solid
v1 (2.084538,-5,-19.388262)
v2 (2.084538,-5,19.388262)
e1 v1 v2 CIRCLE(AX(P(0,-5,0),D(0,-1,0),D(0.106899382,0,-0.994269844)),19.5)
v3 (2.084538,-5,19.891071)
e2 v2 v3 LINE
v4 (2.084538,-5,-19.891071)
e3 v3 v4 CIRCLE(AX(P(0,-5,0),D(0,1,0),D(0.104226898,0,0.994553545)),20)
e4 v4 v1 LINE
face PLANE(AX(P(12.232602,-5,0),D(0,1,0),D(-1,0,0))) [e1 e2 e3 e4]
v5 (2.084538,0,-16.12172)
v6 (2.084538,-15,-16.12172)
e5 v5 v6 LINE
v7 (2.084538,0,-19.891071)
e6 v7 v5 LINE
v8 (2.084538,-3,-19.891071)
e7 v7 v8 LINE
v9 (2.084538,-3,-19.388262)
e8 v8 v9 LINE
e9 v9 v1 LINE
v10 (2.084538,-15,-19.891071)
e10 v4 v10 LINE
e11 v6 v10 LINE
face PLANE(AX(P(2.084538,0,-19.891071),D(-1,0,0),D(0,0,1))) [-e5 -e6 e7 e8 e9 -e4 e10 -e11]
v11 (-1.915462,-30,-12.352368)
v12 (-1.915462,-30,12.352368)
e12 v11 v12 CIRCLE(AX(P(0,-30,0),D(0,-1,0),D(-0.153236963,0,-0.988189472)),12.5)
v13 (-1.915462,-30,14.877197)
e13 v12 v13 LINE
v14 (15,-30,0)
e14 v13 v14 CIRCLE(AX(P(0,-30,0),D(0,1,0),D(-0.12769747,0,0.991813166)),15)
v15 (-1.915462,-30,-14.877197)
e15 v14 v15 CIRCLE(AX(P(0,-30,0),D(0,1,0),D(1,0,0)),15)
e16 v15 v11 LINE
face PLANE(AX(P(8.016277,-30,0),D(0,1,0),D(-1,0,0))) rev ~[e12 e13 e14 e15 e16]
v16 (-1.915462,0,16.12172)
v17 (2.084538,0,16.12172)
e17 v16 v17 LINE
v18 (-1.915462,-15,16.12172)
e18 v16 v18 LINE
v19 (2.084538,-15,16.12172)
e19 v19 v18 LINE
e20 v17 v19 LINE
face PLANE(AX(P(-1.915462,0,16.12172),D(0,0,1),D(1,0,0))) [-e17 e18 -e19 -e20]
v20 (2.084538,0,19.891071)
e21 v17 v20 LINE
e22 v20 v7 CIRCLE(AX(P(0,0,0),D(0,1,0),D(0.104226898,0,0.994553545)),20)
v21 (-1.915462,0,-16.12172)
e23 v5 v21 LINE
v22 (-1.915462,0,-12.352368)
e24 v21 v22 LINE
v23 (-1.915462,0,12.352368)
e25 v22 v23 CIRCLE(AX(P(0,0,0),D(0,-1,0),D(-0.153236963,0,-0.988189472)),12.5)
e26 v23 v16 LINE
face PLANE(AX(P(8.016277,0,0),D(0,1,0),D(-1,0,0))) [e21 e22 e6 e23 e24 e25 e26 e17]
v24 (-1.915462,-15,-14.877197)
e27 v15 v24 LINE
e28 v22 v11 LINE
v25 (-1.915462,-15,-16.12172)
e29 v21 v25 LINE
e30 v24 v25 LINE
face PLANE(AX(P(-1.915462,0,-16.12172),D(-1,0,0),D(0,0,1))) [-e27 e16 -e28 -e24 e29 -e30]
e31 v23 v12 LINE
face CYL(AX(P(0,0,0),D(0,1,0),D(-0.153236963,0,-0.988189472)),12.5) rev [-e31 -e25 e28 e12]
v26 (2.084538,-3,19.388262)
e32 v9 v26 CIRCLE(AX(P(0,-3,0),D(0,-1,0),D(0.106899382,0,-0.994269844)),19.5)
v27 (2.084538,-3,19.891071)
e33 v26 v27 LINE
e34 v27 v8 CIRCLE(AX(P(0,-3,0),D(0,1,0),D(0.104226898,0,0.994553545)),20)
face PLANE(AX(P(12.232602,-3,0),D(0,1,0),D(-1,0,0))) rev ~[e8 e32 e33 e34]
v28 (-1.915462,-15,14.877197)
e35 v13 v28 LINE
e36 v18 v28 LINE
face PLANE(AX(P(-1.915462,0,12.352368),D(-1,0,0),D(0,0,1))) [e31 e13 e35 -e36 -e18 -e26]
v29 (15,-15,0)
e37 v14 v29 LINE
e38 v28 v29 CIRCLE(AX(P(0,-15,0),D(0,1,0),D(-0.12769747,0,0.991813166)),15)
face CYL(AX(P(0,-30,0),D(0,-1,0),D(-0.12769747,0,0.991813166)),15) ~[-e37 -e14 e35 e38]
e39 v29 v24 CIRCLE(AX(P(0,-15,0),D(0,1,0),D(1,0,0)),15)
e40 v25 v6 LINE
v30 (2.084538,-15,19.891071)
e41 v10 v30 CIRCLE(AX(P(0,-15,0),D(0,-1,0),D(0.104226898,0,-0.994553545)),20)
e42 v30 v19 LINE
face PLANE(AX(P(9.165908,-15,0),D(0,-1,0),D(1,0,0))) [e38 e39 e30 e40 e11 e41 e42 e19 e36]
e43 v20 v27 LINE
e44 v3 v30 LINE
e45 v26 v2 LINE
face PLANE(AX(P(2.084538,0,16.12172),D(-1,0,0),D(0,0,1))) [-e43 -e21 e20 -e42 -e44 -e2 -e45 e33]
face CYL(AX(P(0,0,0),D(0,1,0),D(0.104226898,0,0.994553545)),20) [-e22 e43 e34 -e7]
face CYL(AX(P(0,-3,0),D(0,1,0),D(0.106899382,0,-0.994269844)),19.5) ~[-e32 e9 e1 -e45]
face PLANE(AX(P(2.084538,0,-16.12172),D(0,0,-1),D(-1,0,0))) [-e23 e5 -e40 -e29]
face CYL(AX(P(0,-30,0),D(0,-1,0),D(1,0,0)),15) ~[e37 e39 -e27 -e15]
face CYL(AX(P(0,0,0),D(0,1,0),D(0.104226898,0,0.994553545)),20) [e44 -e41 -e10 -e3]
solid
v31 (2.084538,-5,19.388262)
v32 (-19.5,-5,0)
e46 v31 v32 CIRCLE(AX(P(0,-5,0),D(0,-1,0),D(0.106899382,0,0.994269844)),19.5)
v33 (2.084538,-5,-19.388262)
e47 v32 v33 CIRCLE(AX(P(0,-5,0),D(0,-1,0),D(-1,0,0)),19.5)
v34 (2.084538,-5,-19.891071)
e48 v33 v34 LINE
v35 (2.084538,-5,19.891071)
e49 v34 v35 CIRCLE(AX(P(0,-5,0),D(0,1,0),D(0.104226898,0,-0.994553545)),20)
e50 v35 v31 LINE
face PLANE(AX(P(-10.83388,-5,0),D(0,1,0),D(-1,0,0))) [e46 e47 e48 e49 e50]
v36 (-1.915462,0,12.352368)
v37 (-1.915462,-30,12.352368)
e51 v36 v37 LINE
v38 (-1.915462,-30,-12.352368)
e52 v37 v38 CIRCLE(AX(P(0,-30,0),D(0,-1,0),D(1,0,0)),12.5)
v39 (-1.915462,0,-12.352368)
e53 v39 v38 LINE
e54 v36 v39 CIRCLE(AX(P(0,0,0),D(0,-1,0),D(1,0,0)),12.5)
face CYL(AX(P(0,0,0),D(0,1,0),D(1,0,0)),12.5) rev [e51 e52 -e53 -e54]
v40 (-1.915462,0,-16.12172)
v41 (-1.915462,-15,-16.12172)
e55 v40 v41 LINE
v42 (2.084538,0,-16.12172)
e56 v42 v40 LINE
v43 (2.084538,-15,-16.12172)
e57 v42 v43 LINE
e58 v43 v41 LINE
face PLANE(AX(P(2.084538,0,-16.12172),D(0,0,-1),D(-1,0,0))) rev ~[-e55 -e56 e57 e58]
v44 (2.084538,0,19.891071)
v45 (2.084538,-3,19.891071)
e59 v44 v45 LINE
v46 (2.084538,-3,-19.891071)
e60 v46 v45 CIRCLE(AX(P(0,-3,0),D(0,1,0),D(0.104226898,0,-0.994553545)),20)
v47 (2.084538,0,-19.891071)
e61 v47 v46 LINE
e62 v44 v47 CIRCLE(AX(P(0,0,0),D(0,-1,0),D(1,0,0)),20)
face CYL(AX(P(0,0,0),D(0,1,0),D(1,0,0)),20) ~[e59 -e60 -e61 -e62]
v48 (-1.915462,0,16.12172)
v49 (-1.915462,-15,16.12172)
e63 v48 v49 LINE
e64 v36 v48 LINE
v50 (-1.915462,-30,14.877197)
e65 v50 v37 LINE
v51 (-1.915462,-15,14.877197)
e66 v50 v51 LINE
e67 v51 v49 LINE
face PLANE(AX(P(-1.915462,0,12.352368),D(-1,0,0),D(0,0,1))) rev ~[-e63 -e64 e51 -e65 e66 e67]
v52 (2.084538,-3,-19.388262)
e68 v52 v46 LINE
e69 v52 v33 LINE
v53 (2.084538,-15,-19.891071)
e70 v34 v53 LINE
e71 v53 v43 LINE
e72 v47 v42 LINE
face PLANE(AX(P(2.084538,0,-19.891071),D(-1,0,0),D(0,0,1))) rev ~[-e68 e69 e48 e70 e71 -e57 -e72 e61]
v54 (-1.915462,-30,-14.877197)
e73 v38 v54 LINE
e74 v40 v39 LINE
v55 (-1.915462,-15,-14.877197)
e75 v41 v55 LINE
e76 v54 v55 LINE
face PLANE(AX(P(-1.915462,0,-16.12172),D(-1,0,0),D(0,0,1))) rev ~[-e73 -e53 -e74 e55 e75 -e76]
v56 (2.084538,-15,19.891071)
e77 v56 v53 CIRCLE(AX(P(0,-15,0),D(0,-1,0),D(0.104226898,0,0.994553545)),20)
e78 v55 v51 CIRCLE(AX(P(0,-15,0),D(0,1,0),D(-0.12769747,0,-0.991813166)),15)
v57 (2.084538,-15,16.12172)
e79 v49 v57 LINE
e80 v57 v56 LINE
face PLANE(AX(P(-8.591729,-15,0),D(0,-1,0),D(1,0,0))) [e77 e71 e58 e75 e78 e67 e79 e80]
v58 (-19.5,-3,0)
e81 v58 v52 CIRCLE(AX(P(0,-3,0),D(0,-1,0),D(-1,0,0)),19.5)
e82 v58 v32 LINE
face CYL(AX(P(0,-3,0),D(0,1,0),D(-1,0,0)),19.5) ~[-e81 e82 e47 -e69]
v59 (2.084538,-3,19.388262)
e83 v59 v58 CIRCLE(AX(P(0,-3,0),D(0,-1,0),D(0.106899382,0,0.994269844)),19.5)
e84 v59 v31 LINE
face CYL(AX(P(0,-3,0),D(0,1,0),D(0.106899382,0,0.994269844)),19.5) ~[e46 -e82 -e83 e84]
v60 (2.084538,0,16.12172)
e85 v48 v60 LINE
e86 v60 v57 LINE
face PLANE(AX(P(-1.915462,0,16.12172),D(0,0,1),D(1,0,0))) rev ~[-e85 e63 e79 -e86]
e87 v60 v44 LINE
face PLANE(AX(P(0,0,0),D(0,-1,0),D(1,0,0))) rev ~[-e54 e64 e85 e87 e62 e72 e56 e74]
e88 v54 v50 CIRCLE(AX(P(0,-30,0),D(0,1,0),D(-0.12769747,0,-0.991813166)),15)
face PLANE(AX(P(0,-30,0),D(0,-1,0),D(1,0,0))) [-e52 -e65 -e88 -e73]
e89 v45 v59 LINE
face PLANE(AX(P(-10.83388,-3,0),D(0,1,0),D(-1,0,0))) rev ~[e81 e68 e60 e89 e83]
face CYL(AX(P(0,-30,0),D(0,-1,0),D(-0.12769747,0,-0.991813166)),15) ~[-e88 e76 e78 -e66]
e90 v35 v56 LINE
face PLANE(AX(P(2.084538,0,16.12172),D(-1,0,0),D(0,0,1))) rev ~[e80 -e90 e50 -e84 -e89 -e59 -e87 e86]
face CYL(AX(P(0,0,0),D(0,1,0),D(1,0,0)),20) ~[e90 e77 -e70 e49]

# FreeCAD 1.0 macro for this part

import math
import FreeCAD as App
import Part
import Sketcher

V = App.Vector

doc = App.newDocument("Part")
body = doc.addObject("PartDesign::Body", "Body")

# Sketch on XZ plane
sketch1 = body.newObject("Sketcher::SketchObject", "Sketch")
sketch1.AttachmentSupport = (doc.getObject("XZ_Plane"), [""])
sketch1.MapMode = "FlatFace"
sketch1.addGeometry([
    Part.Circle(V(0, 0, 0), V(0, 0, 1), 15),
    Part.Circle(V(0, 0, 0), V(0, 0, 1), 12),
], False)
sketch1.addConstraint([
    Sketcher.Constraint("Coincident", 0, 3, -1, 1),
    Sketcher.Constraint("Coincident", 1, 3, -1, 1),
    Sketcher.Constraint("Diameter", 0, 30.0),
    Sketcher.Constraint("Diameter", 1, 25.0),
])
pad1 = body.newObject("PartDesign::Pad", "Pad")
pad1.Profile = sketch1
pad1.Length = 30

# Sketch on XZ plane
sketch2 = body.newObject("Sketcher::SketchObject", "Sketch001")
sketch2.AttachmentSupport = (doc.getObject("XZ_Plane"), [""])
sketch2.MapMode = "FlatFace"
sketch2.addGeometry([
    Part.Circle(V(0, 0, 0), V(0, 0, 1), 20),
    Part.Circle(V(0, 0, 0), V(0, 0, 1), 15),
], False)
sketch2.addConstraint([
    Sketcher.Constraint("Coincident", 0, 3, -1, 1),
    Sketcher.Constraint("Coincident", 1, 3, -1, 1),
    Sketcher.Constraint("Diameter", 0, 40.0),
    Sketcher.Constraint("Diameter", 1, 30.0),
])
pad2 = body.newObject("PartDesign::Pad", "Pad001")
pad2.Profile = sketch2
pad2.Length = 30

# Sketch on XZ plane
sketch3 = body.newObject("Sketcher::SketchObject", "Sketch002")
sketch3.AttachmentSupport = (doc.getObject("XZ_Plane"), [""])
sketch3.MapMode = "FlatFace"
sketch3.addGeometry([
    Part.ArcOfCircle(Part.Circle(V(0, 0, 0), V(0, 0, 1), 20), math.radians(-6), math.radians(84)),  # 0
    Part.ArcOfCircle(Part.Circle(V(0, 0, 0), V(0, 0, 1), 20), math.radians(-84), math.radians(-6)),  # 1
    Part.LineSegment(V(2.08, -19.89, 0), V(2.08, -16.12, 0)),  # 2
    Part.LineSegment(V(2.08, -16.12, 0), V(-1.92, -16.12, 0)),  # 3
    Part.LineSegment(V(-1.92, -16.12, 0), V(-1.92, -12.35, 0)),  # 4
    Part.ArcOfCircle(Part.Circle(V(0, 0, 0), V(0, 0, 1), 12.5), math.radians(-99), math.radians(9)),  # 5
    Part.ArcOfCircle(Part.Circle(V(0, 0, 0), V(0, 0, 1), 12.5), math.radians(8.74), math.radians(9.21)),  # 6
    Part.ArcOfCircle(Part.Circle(V(0, 0, 0), V(0, 0, 1), 12.5), math.radians(9), math.radians(99)),  # 7
    Part.LineSegment(V(-1.92, 12.35, 0), V(-1.92, 16.12, 0)),  # 8
    Part.LineSegment(V(-1.92, 16.12, 0), V(2.08, 16.12, 0)),  # 9
    Part.LineSegment(V(2.08, 16.12, 0), V(2.08, 19.89, 0)),  # 10
], False)
sketch3.addConstraint([
    Sketcher.Constraint("Tangent", 0, 1, 1, 2),
    Sketcher.Constraint("Coincident", 1, 1, 2, 1),
    Sketcher.Constraint("Coincident", 2, 2, 3, 1),
    Sketcher.Constraint("Coincident", 3, 2, 4, 1),
    Sketcher.Constraint("Coincident", 4, 2, 5, 1),
    Sketcher.Constraint("Tangent", 5, 2, 6, 1),
    Sketcher.Constraint("Tangent", 6, 2, 7, 1),
    Sketcher.Constraint("Coincident", 7, 2, 8, 1),
    Sketcher.Constraint("Coincident", 8, 2, 9, 1),
    Sketcher.Constraint("Coincident", 9, 2, 10, 1),
    Sketcher.Constraint("Coincident", 10, 2, 0, 2),
    Sketcher.Constraint("Vertical", 2),
    Sketcher.Constraint("Horizontal", 3),
    Sketcher.Constraint("Vertical", 4),
    Sketcher.Constraint("Vertical", 8),
    Sketcher.Constraint("Horizontal", 9),
    Sketcher.Constraint("Vertical", 10),
    Sketcher.Constraint("Coincident", 0, 3, -1, 1),
    Sketcher.Constraint("Coincident", 5, 3, -1, 1),
    Sketcher.Constraint("Coincident", 7, 3, -1, 1),
    Sketcher.Constraint("Equal", 0, 1),
    Sketcher.Constraint("Symmetric", 3, 2, 8, 2, -1),
    Sketcher.Constraint("Vertical", 2, 2, 9, 2),
    Sketcher.Constraint("Equal", 2, 4),
    Sketcher.Constraint("Radius", 0, 20.0),
    Sketcher.Constraint("Radius", 5, 12.5),
    Sketcher.Constraint("DistanceX", 3, 2, 3, 1, 4.0),
    Sketcher.Constraint("DistanceY", 0, 1, -1, 1, 2.0),
    Sketcher.Constraint("DistanceY", -1, 1, 6, 2, 2.0),
    Sketcher.Constraint("DistanceY", -1, 1, 5, 2, 1.9),
    Sketcher.Constraint("DistanceY", 2, 1, 2, 2, 3.769351),
])
pocket1 = body.newObject("PartDesign::Pocket", "Pocket")
pocket1.Profile = sketch3
pocket1.Type = "ThroughAll"
pocket1.Reversed = True

# Sketch on XZ plane
sketch4 = body.newObject("Sketcher::SketchObject", "Sketch003")
sketch4.AttachmentSupport = (doc.getObject("XZ_Plane"), [""])
sketch4.MapMode = "FlatFace"
sketch4.AttachmentOffset = App.Placement(V(0, 0, 30), App.Rotation())
sketch4.addGeometry([
    Part.ArcOfCircle(Part.Circle(V(0, 0, 0), V(0, 0, 1), 15), math.radians(97), math.radians(263)),  # 0
    Part.LineSegment(V(-1.9, 14.9, 0), V(-1.9, 16.1, 0)),  # 1
    Part.LineSegment(V(-1.9, 16.1, 0), V(2.1, 16.1, 0)),  # 2
    Part.LineSegment(V(2.1, 16.1, 0), V(2.1, 19.9, 0)),  # 3
    Part.ArcOfCircle(Part.Circle(V(0, 0, 0), V(0, 0, 1), 20), math.radians(84), math.radians(276)),  # 4
    Part.LineSegment(V(2.1, -19.9, 0), V(2.1, -16.1, 0)),  # 5
    Part.LineSegment(V(2.1, -16.1, 0), V(-1.9, -16.1, 0)),  # 6
    Part.LineSegment(V(-1.9, -16.1, 0), V(-1.9, -14.9, 0)),  # 7
], False)
sketch4.addConstraint([
    Sketcher.Constraint("Coincident", 0, 1, 1, 1),
    Sketcher.Constraint("Coincident", 1, 2, 2, 1),
    Sketcher.Constraint("Coincident", 2, 2, 3, 1),
    Sketcher.Constraint("Coincident", 3, 2, 4, 1),
    Sketcher.Constraint("Coincident", 4, 2, 5, 1),
    Sketcher.Constraint("Coincident", 5, 2, 6, 1),
    Sketcher.Constraint("Coincident", 6, 2, 7, 1),
    Sketcher.Constraint("Coincident", 7, 2, 0, 2),
    Sketcher.Constraint("Vertical", 1),
    Sketcher.Constraint("Horizontal", 2),
    Sketcher.Constraint("Vertical", 3),
    Sketcher.Constraint("Vertical", 5),
    Sketcher.Constraint("Horizontal", 6),
    Sketcher.Constraint("Vertical", 7),
    Sketcher.Constraint("Coincident", 0, 3, -1, 1),
    Sketcher.Constraint("Coincident", 4, 3, -1, 1),
    Sketcher.Constraint("Symmetric", 2, 2, 5, 2, -1),
    Sketcher.Constraint("Vertical", 1, 2, 6, 2),
    Sketcher.Constraint("Radius", 0, 15.0),
    Sketcher.Constraint("Radius", 4, 20.0),
    Sketcher.Constraint("DistanceX", 2, 1, 2, 2, 4.0),
    Sketcher.Constraint("DistanceY", 3, 1, 3, 2, 3.769351),
    Sketcher.Constraint("DistanceY", 1, 1, 1, 2, 1.244522),
])
pocket2 = body.newObject("PartDesign::Pocket", "Pocket001")
pocket2.Profile = sketch4
pocket2.Length = 15

# Sketch on XZ plane
sketch5 = body.newObject("Sketcher::SketchObject", "Sketch004")
sketch5.AttachmentSupport = (doc.getObject("XZ_Plane"), [""])
sketch5.MapMode = "FlatFace"
sketch5.AttachmentOffset = App.Placement(V(0, 0, 3), App.Rotation())
sketch5.addGeometry([
    Part.ArcOfCircle(Part.Circle(V(0, 0, 0), V(0, 0, 1), 19.5), math.radians(84), math.radians(180)),  # 0
    Part.ArcOfCircle(Part.Circle(V(0, 0, 0), V(0, 0, 1), 19.5), math.radians(180), math.radians(276)),  # 1
    Part.LineSegment(V(2.1, -19.4, 0), V(2.1, -19.9, 0)),  # 2
    Part.ArcOfCircle(Part.Circle(V(0, 0, 0), V(0, 0, 1), 20), math.radians(84), math.radians(276)),  # 3
    Part.LineSegment(V(2.1, 19.9, 0), V(2.1, 19.4, 0)),  # 4
], False)
sketch5.addConstraint([
    Sketcher.Constraint("Tangent", 0, 2, 1, 1),
    Sketcher.Constraint("Coincident", 1, 2, 2, 1),
    Sketcher.Constraint("Coincident", 2, 2, 3, 2),
    Sketcher.Constraint("Coincident", 3, 1, 4, 1),
    Sketcher.Constraint("Coincident", 4, 2, 0, 1),
    Sketcher.Constraint("Vertical", 2),
    Sketcher.Constraint("Vertical", 4),
    Sketcher.Constraint("Coincident", 0, 3, -1, 1),
    Sketcher.Constraint("Coincident", 3, 3, -1, 1),
    Sketcher.Constraint("Equal", 0, 1),
    Sketcher.Constraint("PointOnObject", 0, 2, -1),
    Sketcher.Constraint("Vertical", 2, 2, 3, 1),
    Sketcher.Constraint("Radius", 3, 20.0),
    Sketcher.Constraint("Radius", 0, 19.5),
    Sketcher.Constraint("DistanceY", 1, 2, -1, 1, 19.388262),
])
pocket3 = body.newObject("PartDesign::Pocket", "Pocket002")
pocket3.Profile = sketch5
pocket3.Length = 2
pocket3.Reversed = True
body2 = doc.addObject("PartDesign::Body", "Body001")

# Sketch on XZ plane
sketch6 = body2.newObject("Sketcher::SketchObject", "Sketch005")
sketch6.AttachmentSupport = (doc.getObject("XZ_Plane001"), [""])
sketch6.MapMode = "FlatFace"
sketch6.addGeometry([
    Part.LineSegment(V(2.1, 16.1, 0), V(2.1, 19.9, 0)),  # 0
    Part.ArcOfCircle(Part.Circle(V(0, 0, 0), V(0, 0, 1), 20), math.radians(-84), math.radians(84)),  # 1
    Part.LineSegment(V(2.1, -19.9, 0), V(2.1, -16.1, 0)),  # 2
    Part.LineSegment(V(2.1, -16.1, 0), V(-1.9, -16.1, 0)),  # 3
    Part.LineSegment(V(-1.9, -16.1, 0), V(-1.9, -12.4, 0)),  # 4
    Part.ArcOfCircle(Part.Circle(V(0, 0, 0), V(0, 0, 1), 12.5), math.radians(-99), math.radians(99)),  # 5
    Part.LineSegment(V(-1.9, 12.4, 0), V(-1.9, 16.1, 0)),  # 6
    Part.LineSegment(V(-1.9, 16.1, 0), V(2.1, 16.1, 0)),  # 7
], False)
sketch6.addConstraint([
    Sketcher.Constraint("Coincident", 0, 2, 1, 2),
    Sketcher.Constraint("Coincident", 1, 1, 2, 1),
    Sketcher.Constraint("Coincident", 2, 2, 3, 1),
    Sketcher.Constraint("Coincident", 3, 2, 4, 1),
    Sketcher.Constraint("Coincident", 4, 2, 5, 1),
    Sketcher.Constraint("Coincident", 5, 2, 6, 1),
    Sketcher.Constraint("Coincident", 6, 2, 7, 1),
    Sketcher.Constraint("Coincident", 7, 2, 0, 1),
    Sketcher.Constraint("Vertical", 0),
    Sketcher.Constraint("Vertical", 2),
    Sketcher.Constraint("Horizontal", 3),
    Sketcher.Constraint("Vertical", 4),
    Sketcher.Constraint("Vertical", 6),
    Sketcher.Constraint("Horizontal", 7),
    Sketcher.Constraint("Coincident", 1, 3, -1, 1),
    Sketcher.Constraint("Coincident", 5, 3, -1, 1),
    Sketcher.Constraint("Symmetric", 3, 2, 6, 2, -1),
    Sketcher.Constraint("Vertical", 0, 2, 1, 1),
    Sketcher.Constraint("Equal", 2, 4),
    Sketcher.Constraint("Radius", 1, 20.0),
    Sketcher.Constraint("Radius", 5, 12.5),
    Sketcher.Constraint("DistanceX", 3, 2, 3, 1, 4.0),
    Sketcher.Constraint("DistanceY", 0, 1, 0, 2, 3.769351),
])
pad3 = body2.newObject("PartDesign::Pad", "Pad002")
pad3.Profile = sketch6
pad3.Length = 30

# Sketch on XZ plane
sketch7 = body2.newObject("Sketcher::SketchObject", "Sketch006")
sketch7.AttachmentSupport = (doc.getObject("XZ_Plane001"), [""])
sketch7.MapMode = "FlatFace"
sketch7.AttachmentOffset = App.Placement(V(0, 0, 30), App.Rotation())
sketch7.addGeometry([
    Part.ArcOfCircle(Part.Circle(V(0, 0, 0), V(0, 0, 1), 15), math.radians(0), math.radians(97)),  # 0
    Part.ArcOfCircle(Part.Circle(V(0, 0, 0), V(0, 0, 1), 15), math.radians(-97), math.radians(0)),  # 1
    Part.LineSegment(V(-1.9, -14.9, 0), V(-1.9, -16.1, 0)),  # 2
    Part.LineSegment(V(-1.9, -16.1, 0), V(2.1, -16.1, 0)),  # 3
    Part.LineSegment(V(2.1, -16.1, 0), V(2.1, -19.9, 0)),  # 4
    Part.ArcOfCircle(Part.Circle(V(0, 0, 0), V(0, 0, 1), 20), math.radians(-84), math.radians(84)),  # 5
    Part.LineSegment(V(2.1, 19.9, 0), V(2.1, 16.1, 0)),  # 6
    Part.LineSegment(V(2.1, 16.1, 0), V(-1.9, 16.1, 0)),  # 7
    Part.LineSegment(V(-1.9, 16.1, 0), V(-1.9, 14.9, 0)),  # 8
], False)
sketch7.addConstraint([
    Sketcher.Constraint("Tangent", 0, 1, 1, 2),
    Sketcher.Constraint("Coincident", 1, 1, 2, 1),
    Sketcher.Constraint("Coincident", 2, 2, 3, 1),
    Sketcher.Constraint("Coincident", 3, 2, 4, 1),
    Sketcher.Constraint("Coincident", 4, 2, 5, 1),
    Sketcher.Constraint("Coincident", 5, 2, 6, 1),
    Sketcher.Constraint("Coincident", 6, 2, 7, 1),
    Sketcher.Constraint("Coincident", 7, 2, 8, 1),
    Sketcher.Constraint("Coincident", 8, 2, 0, 2),
    Sketcher.Constraint("Vertical", 2),
    Sketcher.Constraint("Horizontal", 3),
    Sketcher.Constraint("Vertical", 4),
    Sketcher.Constraint("Vertical", 6),
    Sketcher.Constraint("Horizontal", 7),
    Sketcher.Constraint("Vertical", 8),
    Sketcher.Constraint("Coincident", 0, 3, -1, 1),
    Sketcher.Constraint("Coincident", 5, 3, -1, 1),
    Sketcher.Constraint("Equal", 0, 1),
    Sketcher.Constraint("Symmetric", 3, 2, 6, 2, -1),
    Sketcher.Constraint("PointOnObject", 0, 1, -1),
    Sketcher.Constraint("Vertical", 2, 2, 7, 2),
    Sketcher.Constraint("Radius", 0, 15.0),
    Sketcher.Constraint("Radius", 5, 20.0),
    Sketcher.Constraint("DistanceX", 3, 1, 3, 2, 4.0),
    Sketcher.Constraint("DistanceY", 4, 2, 4, 1, 3.769351),
    Sketcher.Constraint("DistanceY", 2, 2, 2, 1, 1.244522),
])
pocket4 = body2.newObject("PartDesign::Pocket", "Pocket003")
pocket4.Profile = sketch7
pocket4.Length = 15

# Sketch on XZ plane
sketch8 = body2.newObject("Sketcher::SketchObject", "Sketch007")
sketch8.AttachmentSupport = (doc.getObject("XZ_Plane001"), [""])
sketch8.MapMode = "FlatFace"
sketch8.AttachmentOffset = App.Placement(V(0, 0, 3), App.Rotation())
sketch8.addGeometry([
    Part.ArcOfCircle(Part.Circle(V(0, 0, 0), V(0, 0, 1), 19.5), math.radians(-84), math.radians(84)),
    Part.LineSegment(V(2.1, 19.4, 0), V(2.1, 19.9, 0)),
    Part.ArcOfCircle(Part.Circle(V(0, 0, 0), V(0, 0, 1), 20), math.radians(-84), math.radians(84)),
    Part.LineSegment(V(2.1, -19.9, 0), V(2.1, -19.4, 0)),
], False)
sketch8.addConstraint([
    Sketcher.Constraint("Coincident", 0, 2, 1, 1),
    Sketcher.Constraint("Coincident", 1, 2, 2, 2),
    Sketcher.Constraint("Coincident", 2, 1, 3, 1),
    Sketcher.Constraint("Coincident", 3, 2, 0, 1),
    Sketcher.Constraint("Vertical", 1),
    Sketcher.Constraint("Vertical", 3),
    Sketcher.Constraint("Coincident", 0, 3, -1, 1),
    Sketcher.Constraint("Coincident", 2, 3, -1, 1),
    Sketcher.Constraint("Vertical", 1, 2, 2, 1),
    Sketcher.Constraint("Radius", 2, 20.0),
    Sketcher.Constraint("Radius", 0, 19.5),
    Sketcher.Constraint("DistanceY", -1, 1, 0, 2, 19.388262),
])
pocket5 = body2.newObject("PartDesign::Pocket", "Pocket004")
pocket5.Profile = sketch8
pocket5.Length = 2
pocket5.Reversed = True

doc.recompute()
